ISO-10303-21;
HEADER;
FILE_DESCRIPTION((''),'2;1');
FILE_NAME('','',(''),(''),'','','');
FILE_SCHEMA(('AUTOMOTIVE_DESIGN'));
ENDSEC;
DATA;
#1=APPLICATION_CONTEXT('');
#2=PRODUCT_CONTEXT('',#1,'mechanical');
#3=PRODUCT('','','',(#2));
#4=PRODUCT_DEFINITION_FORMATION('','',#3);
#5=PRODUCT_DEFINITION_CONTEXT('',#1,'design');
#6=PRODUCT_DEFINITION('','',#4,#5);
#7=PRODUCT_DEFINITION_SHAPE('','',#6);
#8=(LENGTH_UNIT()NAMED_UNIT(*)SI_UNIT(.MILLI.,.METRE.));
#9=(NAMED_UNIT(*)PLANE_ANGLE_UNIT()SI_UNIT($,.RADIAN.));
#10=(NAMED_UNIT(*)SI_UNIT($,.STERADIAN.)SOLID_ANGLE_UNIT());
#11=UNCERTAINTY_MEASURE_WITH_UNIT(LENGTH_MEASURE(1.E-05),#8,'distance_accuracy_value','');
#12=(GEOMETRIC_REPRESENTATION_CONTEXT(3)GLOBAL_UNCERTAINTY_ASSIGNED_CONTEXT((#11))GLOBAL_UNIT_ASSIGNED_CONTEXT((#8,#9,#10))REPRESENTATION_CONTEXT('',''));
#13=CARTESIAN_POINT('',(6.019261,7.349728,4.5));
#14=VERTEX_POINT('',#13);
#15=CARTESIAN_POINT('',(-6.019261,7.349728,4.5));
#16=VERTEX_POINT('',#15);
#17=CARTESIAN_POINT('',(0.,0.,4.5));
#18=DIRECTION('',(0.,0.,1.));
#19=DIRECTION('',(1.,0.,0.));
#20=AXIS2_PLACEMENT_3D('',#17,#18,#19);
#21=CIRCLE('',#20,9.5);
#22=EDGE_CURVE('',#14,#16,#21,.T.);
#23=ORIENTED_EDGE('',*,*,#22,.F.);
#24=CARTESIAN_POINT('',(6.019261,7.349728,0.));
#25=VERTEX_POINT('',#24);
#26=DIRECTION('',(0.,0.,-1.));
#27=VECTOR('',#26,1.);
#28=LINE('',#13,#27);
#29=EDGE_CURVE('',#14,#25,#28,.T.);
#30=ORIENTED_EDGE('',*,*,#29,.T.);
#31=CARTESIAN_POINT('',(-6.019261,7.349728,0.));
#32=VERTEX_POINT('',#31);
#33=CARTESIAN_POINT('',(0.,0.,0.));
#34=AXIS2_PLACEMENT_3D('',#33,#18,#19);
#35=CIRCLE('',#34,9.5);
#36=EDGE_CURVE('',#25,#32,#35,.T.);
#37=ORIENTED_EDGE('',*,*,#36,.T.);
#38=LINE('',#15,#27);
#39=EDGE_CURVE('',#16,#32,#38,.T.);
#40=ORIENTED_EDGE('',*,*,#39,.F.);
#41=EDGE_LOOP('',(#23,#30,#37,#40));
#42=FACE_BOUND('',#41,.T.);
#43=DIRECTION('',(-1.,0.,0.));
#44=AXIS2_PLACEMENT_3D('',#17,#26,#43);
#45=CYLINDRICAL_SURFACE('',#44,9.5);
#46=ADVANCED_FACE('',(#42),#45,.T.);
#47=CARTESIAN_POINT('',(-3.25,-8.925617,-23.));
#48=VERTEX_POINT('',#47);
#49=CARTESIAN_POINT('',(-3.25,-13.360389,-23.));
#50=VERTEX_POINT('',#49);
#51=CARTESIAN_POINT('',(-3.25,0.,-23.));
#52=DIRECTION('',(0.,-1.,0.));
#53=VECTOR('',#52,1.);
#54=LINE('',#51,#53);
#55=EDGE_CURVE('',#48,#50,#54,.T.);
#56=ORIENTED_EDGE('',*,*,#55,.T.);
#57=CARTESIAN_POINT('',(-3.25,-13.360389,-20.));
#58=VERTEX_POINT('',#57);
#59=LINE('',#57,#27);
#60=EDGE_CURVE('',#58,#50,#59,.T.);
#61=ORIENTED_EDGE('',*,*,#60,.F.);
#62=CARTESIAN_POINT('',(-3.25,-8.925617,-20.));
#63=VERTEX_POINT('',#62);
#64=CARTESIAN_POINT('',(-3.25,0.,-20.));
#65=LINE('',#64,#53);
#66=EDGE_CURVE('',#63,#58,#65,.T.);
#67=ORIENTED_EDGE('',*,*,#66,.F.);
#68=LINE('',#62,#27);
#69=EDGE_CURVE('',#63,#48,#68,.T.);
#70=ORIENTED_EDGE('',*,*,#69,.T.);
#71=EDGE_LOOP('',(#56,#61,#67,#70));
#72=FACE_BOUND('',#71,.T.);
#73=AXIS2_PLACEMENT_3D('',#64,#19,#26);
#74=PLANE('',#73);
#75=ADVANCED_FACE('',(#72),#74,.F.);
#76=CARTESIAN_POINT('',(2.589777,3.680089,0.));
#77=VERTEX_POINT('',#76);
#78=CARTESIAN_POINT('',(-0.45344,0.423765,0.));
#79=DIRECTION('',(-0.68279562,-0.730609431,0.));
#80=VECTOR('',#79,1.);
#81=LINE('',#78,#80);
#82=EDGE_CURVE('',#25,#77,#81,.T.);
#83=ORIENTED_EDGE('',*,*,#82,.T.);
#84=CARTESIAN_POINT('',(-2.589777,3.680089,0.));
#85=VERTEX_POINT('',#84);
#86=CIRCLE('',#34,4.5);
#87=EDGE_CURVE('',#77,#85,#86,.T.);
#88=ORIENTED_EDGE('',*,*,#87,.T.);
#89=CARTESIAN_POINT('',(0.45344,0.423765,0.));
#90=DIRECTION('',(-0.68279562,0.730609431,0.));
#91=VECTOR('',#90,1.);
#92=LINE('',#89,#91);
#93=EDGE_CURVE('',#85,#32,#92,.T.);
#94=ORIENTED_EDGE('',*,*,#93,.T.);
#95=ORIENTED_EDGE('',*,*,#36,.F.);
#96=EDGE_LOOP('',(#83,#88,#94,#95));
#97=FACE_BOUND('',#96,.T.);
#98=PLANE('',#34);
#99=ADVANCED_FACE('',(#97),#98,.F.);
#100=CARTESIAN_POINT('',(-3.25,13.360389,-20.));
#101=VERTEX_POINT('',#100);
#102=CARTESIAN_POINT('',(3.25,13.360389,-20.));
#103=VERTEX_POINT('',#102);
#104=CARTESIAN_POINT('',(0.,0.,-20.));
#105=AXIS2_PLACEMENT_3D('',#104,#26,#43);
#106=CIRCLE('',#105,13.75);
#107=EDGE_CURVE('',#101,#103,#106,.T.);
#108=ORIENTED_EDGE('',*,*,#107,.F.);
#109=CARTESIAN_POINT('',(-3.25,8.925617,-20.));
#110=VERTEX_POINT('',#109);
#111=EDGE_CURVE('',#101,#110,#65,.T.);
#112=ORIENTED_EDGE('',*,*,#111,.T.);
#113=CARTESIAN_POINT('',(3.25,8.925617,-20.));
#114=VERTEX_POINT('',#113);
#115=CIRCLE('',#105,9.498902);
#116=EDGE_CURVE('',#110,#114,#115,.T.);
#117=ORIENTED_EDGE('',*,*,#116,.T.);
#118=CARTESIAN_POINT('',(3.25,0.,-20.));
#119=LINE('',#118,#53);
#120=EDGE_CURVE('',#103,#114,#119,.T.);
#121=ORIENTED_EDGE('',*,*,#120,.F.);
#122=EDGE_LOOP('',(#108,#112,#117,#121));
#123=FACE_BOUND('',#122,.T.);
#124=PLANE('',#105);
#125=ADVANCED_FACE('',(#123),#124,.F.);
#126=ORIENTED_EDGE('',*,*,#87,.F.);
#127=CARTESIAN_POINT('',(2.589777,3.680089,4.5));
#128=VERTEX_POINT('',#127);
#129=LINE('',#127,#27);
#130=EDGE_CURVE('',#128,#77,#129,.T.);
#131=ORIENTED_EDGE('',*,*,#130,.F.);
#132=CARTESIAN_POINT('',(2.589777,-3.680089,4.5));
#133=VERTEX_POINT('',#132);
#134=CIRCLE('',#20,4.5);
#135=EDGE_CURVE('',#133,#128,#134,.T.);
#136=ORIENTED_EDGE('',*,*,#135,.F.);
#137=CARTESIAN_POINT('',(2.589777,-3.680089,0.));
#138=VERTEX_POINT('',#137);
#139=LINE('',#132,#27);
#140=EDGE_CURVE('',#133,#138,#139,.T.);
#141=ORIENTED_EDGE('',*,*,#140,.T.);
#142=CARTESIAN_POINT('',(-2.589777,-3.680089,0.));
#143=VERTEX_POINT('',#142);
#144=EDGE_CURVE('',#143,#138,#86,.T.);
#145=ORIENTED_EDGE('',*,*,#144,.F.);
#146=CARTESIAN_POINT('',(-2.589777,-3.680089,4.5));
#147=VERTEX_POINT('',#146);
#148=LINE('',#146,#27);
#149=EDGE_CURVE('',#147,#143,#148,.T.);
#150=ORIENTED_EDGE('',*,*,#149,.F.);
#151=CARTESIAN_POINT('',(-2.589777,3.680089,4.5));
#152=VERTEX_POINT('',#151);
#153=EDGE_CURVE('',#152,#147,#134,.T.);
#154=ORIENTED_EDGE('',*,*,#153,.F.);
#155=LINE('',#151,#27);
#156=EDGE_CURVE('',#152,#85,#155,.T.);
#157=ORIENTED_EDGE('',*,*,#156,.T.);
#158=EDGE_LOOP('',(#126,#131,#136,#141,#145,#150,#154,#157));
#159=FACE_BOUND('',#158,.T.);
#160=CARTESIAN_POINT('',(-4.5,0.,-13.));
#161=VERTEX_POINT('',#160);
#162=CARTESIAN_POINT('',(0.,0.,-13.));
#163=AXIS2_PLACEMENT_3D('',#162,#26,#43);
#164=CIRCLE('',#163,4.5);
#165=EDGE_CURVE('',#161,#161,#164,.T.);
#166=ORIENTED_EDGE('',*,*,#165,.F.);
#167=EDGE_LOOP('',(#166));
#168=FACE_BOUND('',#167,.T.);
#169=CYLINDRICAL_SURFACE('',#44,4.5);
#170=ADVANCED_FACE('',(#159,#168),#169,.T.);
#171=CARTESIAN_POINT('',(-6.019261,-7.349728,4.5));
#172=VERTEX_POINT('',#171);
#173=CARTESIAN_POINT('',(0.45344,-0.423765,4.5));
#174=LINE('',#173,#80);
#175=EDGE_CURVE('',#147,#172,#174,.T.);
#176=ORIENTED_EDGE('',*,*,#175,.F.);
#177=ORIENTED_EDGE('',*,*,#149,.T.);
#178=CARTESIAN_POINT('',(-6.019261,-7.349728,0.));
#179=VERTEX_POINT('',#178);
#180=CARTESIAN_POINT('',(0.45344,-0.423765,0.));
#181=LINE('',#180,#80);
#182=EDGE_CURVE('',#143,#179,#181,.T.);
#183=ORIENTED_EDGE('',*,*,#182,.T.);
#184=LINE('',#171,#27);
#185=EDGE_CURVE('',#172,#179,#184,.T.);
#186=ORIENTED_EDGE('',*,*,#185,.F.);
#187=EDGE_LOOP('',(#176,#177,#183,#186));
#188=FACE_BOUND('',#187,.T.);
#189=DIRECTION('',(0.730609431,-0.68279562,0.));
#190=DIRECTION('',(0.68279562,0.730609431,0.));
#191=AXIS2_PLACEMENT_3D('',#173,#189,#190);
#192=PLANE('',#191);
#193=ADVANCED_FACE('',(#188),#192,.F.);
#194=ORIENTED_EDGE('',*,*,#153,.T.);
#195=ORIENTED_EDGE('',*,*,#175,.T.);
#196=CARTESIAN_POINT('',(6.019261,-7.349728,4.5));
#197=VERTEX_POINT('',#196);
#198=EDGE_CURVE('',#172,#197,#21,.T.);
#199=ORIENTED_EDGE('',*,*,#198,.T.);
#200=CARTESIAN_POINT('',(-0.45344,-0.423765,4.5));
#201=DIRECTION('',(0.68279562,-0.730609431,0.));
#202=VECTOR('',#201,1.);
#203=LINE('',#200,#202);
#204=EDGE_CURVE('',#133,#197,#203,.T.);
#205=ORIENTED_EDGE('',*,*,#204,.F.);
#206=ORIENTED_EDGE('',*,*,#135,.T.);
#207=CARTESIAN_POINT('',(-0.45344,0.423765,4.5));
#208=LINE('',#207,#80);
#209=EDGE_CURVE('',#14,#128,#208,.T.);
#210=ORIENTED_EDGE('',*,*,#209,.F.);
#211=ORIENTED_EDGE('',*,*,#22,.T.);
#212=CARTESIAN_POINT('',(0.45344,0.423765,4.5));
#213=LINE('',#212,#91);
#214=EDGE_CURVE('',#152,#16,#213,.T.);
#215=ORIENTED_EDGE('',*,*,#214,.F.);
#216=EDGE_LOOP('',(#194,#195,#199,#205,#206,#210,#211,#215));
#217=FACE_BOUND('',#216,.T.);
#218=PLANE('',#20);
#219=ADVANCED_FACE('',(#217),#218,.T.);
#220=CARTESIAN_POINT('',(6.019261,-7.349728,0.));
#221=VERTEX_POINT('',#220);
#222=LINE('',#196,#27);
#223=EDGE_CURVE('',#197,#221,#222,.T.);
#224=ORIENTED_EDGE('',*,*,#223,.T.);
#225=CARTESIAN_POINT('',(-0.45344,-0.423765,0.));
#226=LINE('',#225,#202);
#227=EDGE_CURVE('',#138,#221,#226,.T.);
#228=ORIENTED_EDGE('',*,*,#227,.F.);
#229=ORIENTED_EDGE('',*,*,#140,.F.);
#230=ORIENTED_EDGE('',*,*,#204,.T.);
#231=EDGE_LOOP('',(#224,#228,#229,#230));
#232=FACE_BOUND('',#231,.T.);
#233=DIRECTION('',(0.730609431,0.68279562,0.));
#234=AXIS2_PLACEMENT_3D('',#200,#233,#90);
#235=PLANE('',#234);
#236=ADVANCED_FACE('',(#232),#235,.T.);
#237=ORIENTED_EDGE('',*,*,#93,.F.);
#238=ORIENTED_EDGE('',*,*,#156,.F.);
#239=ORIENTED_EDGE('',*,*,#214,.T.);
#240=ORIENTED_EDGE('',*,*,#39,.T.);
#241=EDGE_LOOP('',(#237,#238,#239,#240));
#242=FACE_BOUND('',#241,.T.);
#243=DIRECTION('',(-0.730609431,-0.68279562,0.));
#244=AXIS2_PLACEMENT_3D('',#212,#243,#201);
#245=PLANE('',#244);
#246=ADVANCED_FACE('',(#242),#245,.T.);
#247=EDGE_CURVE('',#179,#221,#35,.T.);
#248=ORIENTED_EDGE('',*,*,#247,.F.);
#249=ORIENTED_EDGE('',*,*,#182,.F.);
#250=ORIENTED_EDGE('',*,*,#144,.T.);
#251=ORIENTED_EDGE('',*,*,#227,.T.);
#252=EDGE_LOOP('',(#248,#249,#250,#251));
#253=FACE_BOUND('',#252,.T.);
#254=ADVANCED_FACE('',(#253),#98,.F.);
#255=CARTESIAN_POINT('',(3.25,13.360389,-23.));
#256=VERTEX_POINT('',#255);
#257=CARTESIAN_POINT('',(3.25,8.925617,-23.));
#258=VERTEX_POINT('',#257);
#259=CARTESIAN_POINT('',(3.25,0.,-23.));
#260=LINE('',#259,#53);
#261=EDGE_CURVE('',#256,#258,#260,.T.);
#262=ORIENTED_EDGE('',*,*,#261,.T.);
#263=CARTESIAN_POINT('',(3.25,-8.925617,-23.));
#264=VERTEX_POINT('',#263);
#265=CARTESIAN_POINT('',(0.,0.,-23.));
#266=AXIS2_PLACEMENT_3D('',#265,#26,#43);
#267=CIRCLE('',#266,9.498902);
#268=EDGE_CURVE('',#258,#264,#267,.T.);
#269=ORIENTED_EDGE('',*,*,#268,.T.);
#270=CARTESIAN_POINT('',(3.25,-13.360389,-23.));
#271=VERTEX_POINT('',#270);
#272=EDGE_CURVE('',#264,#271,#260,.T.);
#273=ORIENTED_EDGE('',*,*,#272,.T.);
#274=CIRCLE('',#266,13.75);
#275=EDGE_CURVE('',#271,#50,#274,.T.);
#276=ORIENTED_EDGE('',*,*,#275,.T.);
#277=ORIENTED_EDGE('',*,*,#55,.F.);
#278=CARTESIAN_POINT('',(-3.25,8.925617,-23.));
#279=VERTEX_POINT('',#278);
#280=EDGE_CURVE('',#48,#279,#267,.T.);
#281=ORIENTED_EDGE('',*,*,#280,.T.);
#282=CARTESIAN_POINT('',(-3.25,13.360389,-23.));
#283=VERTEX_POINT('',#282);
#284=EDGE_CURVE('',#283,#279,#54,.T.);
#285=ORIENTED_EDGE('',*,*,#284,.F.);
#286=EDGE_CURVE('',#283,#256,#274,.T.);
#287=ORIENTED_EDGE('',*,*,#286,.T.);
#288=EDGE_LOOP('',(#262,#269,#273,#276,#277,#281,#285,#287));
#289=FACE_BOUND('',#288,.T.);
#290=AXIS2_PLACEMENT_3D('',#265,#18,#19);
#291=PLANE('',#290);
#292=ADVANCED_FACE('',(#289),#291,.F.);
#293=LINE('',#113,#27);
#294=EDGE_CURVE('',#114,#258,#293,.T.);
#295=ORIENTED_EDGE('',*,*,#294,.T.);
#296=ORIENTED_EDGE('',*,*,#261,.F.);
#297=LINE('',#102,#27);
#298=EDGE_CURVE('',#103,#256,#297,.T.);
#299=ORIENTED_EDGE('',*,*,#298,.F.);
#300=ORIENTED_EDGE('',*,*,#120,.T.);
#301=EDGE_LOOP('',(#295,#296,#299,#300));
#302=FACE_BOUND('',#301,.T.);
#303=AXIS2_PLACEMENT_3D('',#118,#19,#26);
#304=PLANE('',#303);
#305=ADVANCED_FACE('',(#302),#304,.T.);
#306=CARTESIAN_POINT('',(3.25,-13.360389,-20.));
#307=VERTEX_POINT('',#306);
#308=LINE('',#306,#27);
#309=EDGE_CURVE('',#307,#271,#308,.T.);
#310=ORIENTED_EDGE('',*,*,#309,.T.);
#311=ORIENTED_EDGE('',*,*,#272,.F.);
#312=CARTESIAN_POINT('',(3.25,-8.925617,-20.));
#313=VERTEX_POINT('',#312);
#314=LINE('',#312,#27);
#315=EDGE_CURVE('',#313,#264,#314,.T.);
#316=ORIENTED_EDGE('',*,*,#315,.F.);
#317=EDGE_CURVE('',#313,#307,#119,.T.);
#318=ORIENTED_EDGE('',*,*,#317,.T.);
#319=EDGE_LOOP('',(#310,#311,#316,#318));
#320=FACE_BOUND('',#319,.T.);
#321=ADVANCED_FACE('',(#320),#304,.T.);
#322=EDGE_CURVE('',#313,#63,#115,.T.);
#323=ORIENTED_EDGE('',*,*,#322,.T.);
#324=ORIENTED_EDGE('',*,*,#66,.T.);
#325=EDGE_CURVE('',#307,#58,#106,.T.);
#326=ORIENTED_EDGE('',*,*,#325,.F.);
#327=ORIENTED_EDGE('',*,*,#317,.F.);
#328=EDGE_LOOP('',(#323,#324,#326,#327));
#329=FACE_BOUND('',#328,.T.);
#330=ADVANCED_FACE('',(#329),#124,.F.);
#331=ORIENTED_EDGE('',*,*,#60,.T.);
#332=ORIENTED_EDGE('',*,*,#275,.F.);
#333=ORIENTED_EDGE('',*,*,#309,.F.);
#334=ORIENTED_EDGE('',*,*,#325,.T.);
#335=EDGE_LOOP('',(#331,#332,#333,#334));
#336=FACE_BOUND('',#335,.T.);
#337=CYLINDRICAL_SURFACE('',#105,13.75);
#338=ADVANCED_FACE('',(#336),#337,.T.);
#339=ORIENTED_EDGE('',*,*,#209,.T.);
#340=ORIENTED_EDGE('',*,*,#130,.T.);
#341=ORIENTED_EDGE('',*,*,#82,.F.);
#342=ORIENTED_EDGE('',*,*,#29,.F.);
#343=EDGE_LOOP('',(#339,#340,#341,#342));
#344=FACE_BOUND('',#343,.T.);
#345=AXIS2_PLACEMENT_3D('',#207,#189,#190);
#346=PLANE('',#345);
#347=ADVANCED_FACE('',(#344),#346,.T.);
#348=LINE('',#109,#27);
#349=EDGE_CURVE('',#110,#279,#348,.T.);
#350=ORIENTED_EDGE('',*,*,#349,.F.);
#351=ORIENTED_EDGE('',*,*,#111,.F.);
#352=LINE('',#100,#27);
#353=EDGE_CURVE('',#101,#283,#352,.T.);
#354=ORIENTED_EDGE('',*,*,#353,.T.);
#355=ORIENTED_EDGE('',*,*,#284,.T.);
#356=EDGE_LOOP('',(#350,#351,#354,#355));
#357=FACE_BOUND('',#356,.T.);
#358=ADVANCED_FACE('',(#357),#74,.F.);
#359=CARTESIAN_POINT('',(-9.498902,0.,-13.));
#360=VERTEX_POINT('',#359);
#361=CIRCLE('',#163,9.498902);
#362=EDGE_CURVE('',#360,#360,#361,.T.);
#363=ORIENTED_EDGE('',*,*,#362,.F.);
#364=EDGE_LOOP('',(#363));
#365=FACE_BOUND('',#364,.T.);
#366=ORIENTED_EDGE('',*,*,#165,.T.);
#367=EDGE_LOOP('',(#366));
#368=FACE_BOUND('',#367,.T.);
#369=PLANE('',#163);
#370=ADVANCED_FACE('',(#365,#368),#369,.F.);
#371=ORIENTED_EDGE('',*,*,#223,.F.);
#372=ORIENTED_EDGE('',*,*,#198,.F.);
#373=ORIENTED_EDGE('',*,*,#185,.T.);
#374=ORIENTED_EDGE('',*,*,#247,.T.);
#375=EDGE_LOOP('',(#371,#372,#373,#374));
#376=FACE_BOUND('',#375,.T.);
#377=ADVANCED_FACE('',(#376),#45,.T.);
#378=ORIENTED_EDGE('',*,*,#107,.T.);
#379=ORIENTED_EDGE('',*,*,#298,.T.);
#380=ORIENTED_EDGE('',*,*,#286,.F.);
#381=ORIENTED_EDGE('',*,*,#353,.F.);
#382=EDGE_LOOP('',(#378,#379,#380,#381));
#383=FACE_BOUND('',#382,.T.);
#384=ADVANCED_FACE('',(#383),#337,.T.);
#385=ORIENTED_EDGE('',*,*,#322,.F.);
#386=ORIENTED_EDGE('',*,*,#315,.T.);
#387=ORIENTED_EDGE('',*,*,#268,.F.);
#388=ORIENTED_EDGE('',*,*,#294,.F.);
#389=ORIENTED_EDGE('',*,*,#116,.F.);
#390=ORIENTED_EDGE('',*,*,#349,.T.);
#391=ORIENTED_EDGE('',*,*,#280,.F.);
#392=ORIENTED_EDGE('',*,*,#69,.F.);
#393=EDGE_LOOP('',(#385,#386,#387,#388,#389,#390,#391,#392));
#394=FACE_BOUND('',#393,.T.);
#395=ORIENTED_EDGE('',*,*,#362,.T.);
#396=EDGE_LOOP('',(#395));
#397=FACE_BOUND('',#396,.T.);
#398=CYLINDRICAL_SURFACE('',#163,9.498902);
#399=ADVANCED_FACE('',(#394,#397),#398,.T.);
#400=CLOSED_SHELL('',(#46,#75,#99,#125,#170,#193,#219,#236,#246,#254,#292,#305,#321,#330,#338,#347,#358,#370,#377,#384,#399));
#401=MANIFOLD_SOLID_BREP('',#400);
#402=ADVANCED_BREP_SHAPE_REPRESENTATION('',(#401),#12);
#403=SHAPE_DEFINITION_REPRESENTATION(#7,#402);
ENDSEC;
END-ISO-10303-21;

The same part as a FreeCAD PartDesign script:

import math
import FreeCAD as App
import Part
import Sketcher
from FreeCAD import Vector

doc = App.newDocument("Part")
body = doc.addObject("PartDesign::Body", "Body")

sketch1 = body.newObject("Sketcher::SketchObject", "Sketch")
sketch1.AttachmentSupport = (doc.getObject("XY_Plane"), [""])
sketch1.MapMode = "FlatFace"
sketch1.addGeometry(Part.LineSegment(Vector(2.6, 3.7, 0), Vector(6, 7.3, 0)), False)
sketch1.addGeometry(Part.ArcOfCircle(Part.Circle(Vector(0, 0, 0), Vector(0, 0, 1), 9.5), math.radians(51), math.radians(129)), False)
sketch1.addGeometry(Part.LineSegment(Vector(-6, 7.3, 0), Vector(-2.6, 3.7, 0)), False)
sketch1.addGeometry(Part.ArcOfCircle(Part.Circle(Vector(0, 0, 0), Vector(0, 0, 1), 4.5), math.radians(125), math.radians(235)), False)
sketch1.addGeometry(Part.LineSegment(Vector(-2.6, -3.7, 0), Vector(-6, -7.3, 0)), False)
sketch1.addGeometry(Part.ArcOfCircle(Part.Circle(Vector(0, 0, 0), Vector(0, 0, 1), 9.5), math.radians(-129), math.radians(-51)), False)
sketch1.addGeometry(Part.LineSegment(Vector(6, -7.3, 0), Vector(2.6, -3.7, 0)), False)
sketch1.addGeometry(Part.ArcOfCircle(Part.Circle(Vector(0, 0, 0), Vector(0, 0, 1), 4.5), math.radians(-55), math.radians(55)), False)
sketch1.addConstraint(Sketcher.Constraint("Coincident", 0, 2, 1, 1))
sketch1.addConstraint(Sketcher.Constraint("Coincident", 1, 2, 2, 1))
sketch1.addConstraint(Sketcher.Constraint("Coincident", 2, 2, 3, 1))
sketch1.addConstraint(Sketcher.Constraint("Coincident", 3, 2, 4, 1))
sketch1.addConstraint(Sketcher.Constraint("Coincident", 4, 2, 5, 1))
sketch1.addConstraint(Sketcher.Constraint("Coincident", 5, 2, 6, 1))
sketch1.addConstraint(Sketcher.Constraint("Coincident", 6, 2, 7, 1))
sketch1.addConstraint(Sketcher.Constraint("Coincident", 7, 2, 0, 1))
sketch1.addConstraint(Sketcher.Constraint("Coincident", 1, 3, -1, 1))
sketch1.addConstraint(Sketcher.Constraint("Coincident", 3, 3, -1, 1))
sketch1.addConstraint(Sketcher.Constraint("Coincident", 5, 3, -1, 1))
sketch1.addConstraint(Sketcher.Constraint("Coincident", 7, 3, -1, 1))
sketch1.addConstraint(Sketcher.Constraint("Equal", 1, 5))
sketch1.addConstraint(Sketcher.Constraint("Equal", 3, 7))
sketch1.addConstraint(Sketcher.Constraint("Parallel", 0, 4))
sketch1.addConstraint(Sketcher.Constraint("Parallel", 2, 6))
sketch1.addConstraint(Sketcher.Constraint("Horizontal", 0, 2, 1, 2))
sketch1.addConstraint(Sketcher.Constraint("Horizontal", 4, 2, 5, 2))
sketch1.addConstraint(Sketcher.Constraint("Horizontal", 3, 2, 6, 2))
sketch1.addConstraint(Sketcher.Constraint("Vertical", 2, 2, 3, 2))
sketch1.addConstraint(Sketcher.Constraint("Radius", 1, 9.5))
sketch1.addConstraint(Sketcher.Constraint("Radius", 3, 4.5))
sketch1.addConstraint(Sketcher.Constraint("Distance", 0, 5.022709))
sketch1.addConstraint(Sketcher.Constraint("DistanceX", -1, 1, 0, 2, 6.019261))
pad1 = body.newObject("PartDesign::Pad", "Pad")
pad1.Profile = sketch1
pad1.Length = 4.5

sketch2 = body.newObject("Sketcher::SketchObject", "Sketch001")
sketch2.AttachmentSupport = (doc.getObject("XY_Plane"), [""])
sketch2.MapMode = "FlatFace"
sketch2.AttachmentOffset = App.Placement(Vector(0, 0, -23), App.Rotation())
sketch2.addGeometry(Part.Circle(Vector(0, 0, 0), Vector(0, 0, 1), 4.5), False)
sketch2.addConstraint(Sketcher.Constraint("Coincident", 0, 3, -1, 1))
sketch2.addConstraint(Sketcher.Constraint("Diameter", 0, 9.0))
pad2 = body.newObject("PartDesign::Pad", "Pad001")
pad2.Profile = sketch2
pad2.Length = 23

sketch3 = body.newObject("Sketcher::SketchObject", "Sketch002")
sketch3.AttachmentSupport = (doc.getObject("XY_Plane"), [""])
sketch3.MapMode = "FlatFace"
sketch3.AttachmentOffset = App.Placement(Vector(0, 0, -23), App.Rotation())
sketch3.addGeometry(Part.Circle(Vector(0, 0, 0), Vector(0, 0, 1), 9), False)
sketch3.addConstraint(Sketcher.Constraint("Coincident", 0, 3, -1, 1))
sketch3.addConstraint(Sketcher.Constraint("Diameter", 0, 18.997803))
pad3 = body.newObject("PartDesign::Pad", "Pad002")
pad3.Profile = sketch3
pad3.Length = 10

sketch4 = body.newObject("Sketcher::SketchObject", "Sketch003")
sketch4.AttachmentSupport = (doc.getObject("XY_Plane"), [""])
sketch4.MapMode = "FlatFace"
sketch4.AttachmentOffset = App.Placement(Vector(0, 0, -23), App.Rotation())
sketch4.addGeometry(Part.LineSegment(Vector(3.2, 13.4, 0), Vector(3.2, 8.9, 0)), False)
sketch4.addGeometry(Part.ArcOfCircle(Part.Circle(Vector(0, 0, 0), Vector(0, 0, 1), 9.5), math.radians(70), math.radians(110)), False)
sketch4.addGeometry(Part.LineSegment(Vector(-3.2, 8.9, 0), Vector(-3.2, 13.4, 0)), False)
sketch4.addGeometry(Part.ArcOfCircle(Part.Circle(Vector(0, 0, 0), Vector(0, 0, 1), 13.8), math.radians(76), math.radians(104)), False)
sketch4.addGeometry(Part.ArcOfCircle(Part.Circle(Vector(0, 0, 0), Vector(0, 0, 1), 9.5), math.radians(-110), math.radians(-70)), False)
sketch4.addGeometry(Part.LineSegment(Vector(3.2, -8.9, 0), Vector(3.2, -13.4, 0)), False)
sketch4.addGeometry(Part.ArcOfCircle(Part.Circle(Vector(0, 0, 0), Vector(0, 0, 1), 13.8), math.radians(-104), math.radians(-76)), False)
sketch4.addGeometry(Part.LineSegment(Vector(-3.2, -13.4, 0), Vector(-3.2, -8.9, 0)), False)
sketch4.addConstraint(Sketcher.Constraint("Coincident", 0, 2, 1, 1))
sketch4.addConstraint(Sketcher.Constraint("Coincident", 1, 2, 2, 1))
sketch4.addConstraint(Sketcher.Constraint("Coincident", 2, 2, 3, 2))
sketch4.addConstraint(Sketcher.Constraint("Coincident", 3, 1, 0, 1))
sketch4.addConstraint(Sketcher.Constraint("Coincident", 4, 2, 5, 1))
sketch4.addConstraint(Sketcher.Constraint("Coincident", 5, 2, 6, 2))
sketch4.addConstraint(Sketcher.Constraint("Coincident", 6, 1, 7, 1))
sketch4.addConstraint(Sketcher.Constraint("Coincident", 7, 2, 4, 1))
sketch4.addConstraint(Sketcher.Constraint("Vertical", 0))
sketch4.addConstraint(Sketcher.Constraint("Vertical", 2))
sketch4.addConstraint(Sketcher.Constraint("Vertical", 5))
sketch4.addConstraint(Sketcher.Constraint("Vertical", 7))
sketch4.addConstraint(Sketcher.Constraint("Coincident", 1, 3, -1, 1))
sketch4.addConstraint(Sketcher.Constraint("Coincident", 3, 3, -1, 1))
sketch4.addConstraint(Sketcher.Constraint("Coincident", 4, 3, -1, 1))
sketch4.addConstraint(Sketcher.Constraint("Coincident", 6, 3, -1, 1))
sketch4.addConstraint(Sketcher.Constraint("Equal", 1, 4))
sketch4.addConstraint(Sketcher.Constraint("Equal", 3, 6))
sketch4.addConstraint(Sketcher.Constraint("Horizontal", 0, 2, 1, 2))
sketch4.addConstraint(Sketcher.Constraint("Horizontal", 5, 2, 6, 1))
sketch4.addConstraint(Sketcher.Constraint("Vertical", 3, 1, 4, 2))
sketch4.addConstraint(Sketcher.Constraint("Radius", 3, 13.75))
sketch4.addConstraint(Sketcher.Constraint("Radius", 1, 9.498902))
sketch4.addConstraint(Sketcher.Constraint("DistanceX", 1, 2, 0, 2, 6.5))
pad4 = body.newObject("PartDesign::Pad", "Pad003")
pad4.Profile = sketch4
pad4.Length = 3

doc.recompute()
